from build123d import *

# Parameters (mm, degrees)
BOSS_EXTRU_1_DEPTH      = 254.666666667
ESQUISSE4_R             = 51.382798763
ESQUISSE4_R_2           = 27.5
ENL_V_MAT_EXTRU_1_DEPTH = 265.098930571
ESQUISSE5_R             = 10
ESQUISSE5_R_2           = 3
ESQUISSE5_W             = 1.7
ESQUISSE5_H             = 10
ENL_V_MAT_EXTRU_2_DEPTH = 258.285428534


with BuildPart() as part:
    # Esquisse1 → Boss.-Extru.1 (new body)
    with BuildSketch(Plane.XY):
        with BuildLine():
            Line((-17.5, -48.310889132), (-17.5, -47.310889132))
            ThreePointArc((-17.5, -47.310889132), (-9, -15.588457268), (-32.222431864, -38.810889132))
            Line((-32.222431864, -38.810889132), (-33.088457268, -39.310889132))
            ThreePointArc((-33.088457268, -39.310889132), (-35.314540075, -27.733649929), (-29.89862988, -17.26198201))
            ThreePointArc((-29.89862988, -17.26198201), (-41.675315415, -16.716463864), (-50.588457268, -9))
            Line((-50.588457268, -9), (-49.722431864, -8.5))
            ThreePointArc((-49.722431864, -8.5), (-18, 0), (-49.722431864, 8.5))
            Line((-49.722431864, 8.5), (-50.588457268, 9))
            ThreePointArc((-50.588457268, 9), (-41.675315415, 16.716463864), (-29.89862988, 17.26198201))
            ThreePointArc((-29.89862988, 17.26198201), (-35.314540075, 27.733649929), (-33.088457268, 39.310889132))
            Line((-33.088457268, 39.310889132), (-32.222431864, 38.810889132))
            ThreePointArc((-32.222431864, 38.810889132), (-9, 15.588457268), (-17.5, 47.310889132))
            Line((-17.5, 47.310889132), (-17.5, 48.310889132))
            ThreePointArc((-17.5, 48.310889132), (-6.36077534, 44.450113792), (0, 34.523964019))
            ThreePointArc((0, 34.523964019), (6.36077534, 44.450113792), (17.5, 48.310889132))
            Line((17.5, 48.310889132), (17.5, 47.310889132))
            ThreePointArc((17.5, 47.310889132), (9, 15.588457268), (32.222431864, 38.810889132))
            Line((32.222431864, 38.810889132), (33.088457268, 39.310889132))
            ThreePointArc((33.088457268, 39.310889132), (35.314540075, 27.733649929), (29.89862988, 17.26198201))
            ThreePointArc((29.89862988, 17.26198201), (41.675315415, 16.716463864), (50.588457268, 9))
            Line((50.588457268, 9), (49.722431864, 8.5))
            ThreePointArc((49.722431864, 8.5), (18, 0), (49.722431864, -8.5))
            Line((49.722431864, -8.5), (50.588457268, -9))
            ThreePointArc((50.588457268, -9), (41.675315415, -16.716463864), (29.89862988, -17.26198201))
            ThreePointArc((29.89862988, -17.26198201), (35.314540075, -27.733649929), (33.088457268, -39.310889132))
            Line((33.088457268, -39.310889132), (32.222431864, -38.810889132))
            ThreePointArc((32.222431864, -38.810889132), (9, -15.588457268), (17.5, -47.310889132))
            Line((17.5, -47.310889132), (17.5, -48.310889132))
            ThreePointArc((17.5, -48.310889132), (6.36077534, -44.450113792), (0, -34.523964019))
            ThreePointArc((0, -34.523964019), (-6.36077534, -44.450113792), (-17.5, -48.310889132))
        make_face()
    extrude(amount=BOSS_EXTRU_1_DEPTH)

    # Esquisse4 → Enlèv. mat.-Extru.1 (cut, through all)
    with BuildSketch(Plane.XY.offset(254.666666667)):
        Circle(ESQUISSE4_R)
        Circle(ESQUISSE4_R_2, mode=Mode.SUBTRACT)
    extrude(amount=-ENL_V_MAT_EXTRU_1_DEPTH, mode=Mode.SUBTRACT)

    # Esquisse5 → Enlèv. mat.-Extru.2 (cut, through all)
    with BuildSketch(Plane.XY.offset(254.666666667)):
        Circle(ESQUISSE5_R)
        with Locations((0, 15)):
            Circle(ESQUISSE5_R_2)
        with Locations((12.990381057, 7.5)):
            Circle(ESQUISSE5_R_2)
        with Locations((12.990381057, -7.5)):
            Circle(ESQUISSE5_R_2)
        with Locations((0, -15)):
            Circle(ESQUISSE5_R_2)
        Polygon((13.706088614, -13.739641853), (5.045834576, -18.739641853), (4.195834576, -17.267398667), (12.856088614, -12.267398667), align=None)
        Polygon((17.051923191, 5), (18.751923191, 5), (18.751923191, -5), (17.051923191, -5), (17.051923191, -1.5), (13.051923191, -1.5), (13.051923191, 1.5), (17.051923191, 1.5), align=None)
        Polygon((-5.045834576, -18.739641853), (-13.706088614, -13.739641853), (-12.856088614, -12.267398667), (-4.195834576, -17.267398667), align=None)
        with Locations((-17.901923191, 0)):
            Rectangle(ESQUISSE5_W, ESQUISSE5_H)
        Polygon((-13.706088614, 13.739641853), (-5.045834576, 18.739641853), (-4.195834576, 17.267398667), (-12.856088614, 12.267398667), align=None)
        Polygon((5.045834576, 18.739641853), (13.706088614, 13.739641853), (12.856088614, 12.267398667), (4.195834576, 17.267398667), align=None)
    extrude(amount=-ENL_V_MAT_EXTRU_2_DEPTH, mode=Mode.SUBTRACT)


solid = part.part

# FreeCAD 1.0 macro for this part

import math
import FreeCAD as App
import Part
import Sketcher
from FreeCAD import Vector
Q = App.Units.Quantity


def add_polygon(sketch, points):
    """Adds a closed chain of lines whose ends are joined by coincident constraints."""
    first, n = sketch.GeometryCount, len(points)
    for a, b in zip(points, points[1:] + points[:1]):
        sketch.addGeometry(Part.LineSegment(App.Vector(*a, 0), App.Vector(*b, 0)), False)
    for i in range(n):
        sketch.addConstraint(Sketcher.Constraint("Coincident", first + i, 2, first + (i + 1) % n, 1))

doc = App.newDocument("Part")
body = doc.addObject("PartDesign::Body", "Body")

# Sketch on XY plane
sketch1 = body.newObject("Sketcher::SketchObject", "Sketch")
sketch1.AttachmentSupport = (doc.getObject("XY_Plane"), [""])
sketch1.MapMode = "FlatFace"
sketch1.addGeometry([
    Part.LineSegment(Vector(-17.5, -47.3, 0), Vector(-17.5, -48.3, 0)),  # 0
    Part.ArcOfCircle(Part.Circle(Vector(-17.5, -30.3, 0), Vector(0, 0, 1), 18), math.radians(-90), math.radians(-14)),  # 1
    Part.ArcOfCircle(Part.Circle(Vector(17.5, -30.3, 0), Vector(0, 0, 1), 18), math.radians(-166), math.radians(-90)),  # 2
    Part.LineSegment(Vector(17.5, -48.3, 0), Vector(17.5, -47.3, 0)),  # 3
    Part.ArcOfCircle(Part.Circle(Vector(17.5, -30.3, 0), Vector(0, 0, 1), 17), math.radians(-30), math.radians(270)),  # 4
    Part.LineSegment(Vector(32.2, -38.8, 0), Vector(33.1, -39.3, 0)),  # 5
    Part.ArcOfCircle(Part.Circle(Vector(17.5, -30.3, 0), Vector(0, 0, 1), 18), math.radians(-30), math.radians(46)),  # 6
    Part.ArcOfCircle(Part.Circle(Vector(35, 0, 0), Vector(0, 0, 1), 18), math.radians(-106), math.radians(-30)),  # 7
    Part.LineSegment(Vector(50.6, -9, 0), Vector(49.7, -8.5, 0)),  # 8
    Part.ArcOfCircle(Part.Circle(Vector(35, 0, 0), Vector(0, 0, 1), 17), math.radians(30), math.radians(330)),  # 9
    Part.LineSegment(Vector(49.7, 8.5, 0), Vector(50.6, 9, 0)),  # 10
    Part.ArcOfCircle(Part.Circle(Vector(35, 0, 0), Vector(0, 0, 1), 18), math.radians(30), math.radians(106)),  # 11
    Part.ArcOfCircle(Part.Circle(Vector(17.5, 30.3, 0), Vector(0, 0, 1), 18), math.radians(-46), math.radians(30)),  # 12
    Part.LineSegment(Vector(33.1, 39.3, 0), Vector(32.2, 38.8, 0)),  # 13
    Part.ArcOfCircle(Part.Circle(Vector(17.5, 30.3, 0), Vector(0, 0, 1), 17), math.radians(90), math.radians(390)),  # 14
    Part.LineSegment(Vector(17.5, 47.3, 0), Vector(17.5, 48.3, 0)),  # 15
    Part.ArcOfCircle(Part.Circle(Vector(17.5, 30.3, 0), Vector(0, 0, 1), 18), math.radians(90), math.radians(166)),  # 16
    Part.ArcOfCircle(Part.Circle(Vector(-17.5, 30.3, 0), Vector(0, 0, 1), 18), math.radians(14), math.radians(90)),  # 17
    Part.LineSegment(Vector(-17.5, 48.3, 0), Vector(-17.5, 47.3, 0)),  # 18
    Part.ArcOfCircle(Part.Circle(Vector(-17.5, 30.3, 0), Vector(0, 0, 1), 17), math.radians(150), math.radians(450)),  # 19
    Part.LineSegment(Vector(-32.2, 38.8, 0), Vector(-33.1, 39.3, 0)),  # 20
    Part.ArcOfCircle(Part.Circle(Vector(-17.5, 30.3, 0), Vector(0, 0, 1), 18), math.radians(150), math.radians(226)),  # 21
    Part.ArcOfCircle(Part.Circle(Vector(-35, 0, 0), Vector(0, 0, 1), 18), math.radians(74), math.radians(150)),  # 22
    Part.LineSegment(Vector(-50.6, 9, 0), Vector(-49.7, 8.5, 0)),  # 23
    Part.ArcOfCircle(Part.Circle(Vector(-35, 0, 0), Vector(0, 0, 1), 17), math.radians(-150), math.radians(150)),  # 24
    Part.LineSegment(Vector(-49.7, -8.5, 0), Vector(-50.6, -9, 0)),  # 25
    Part.ArcOfCircle(Part.Circle(Vector(-35, 0, 0), Vector(0, 0, 1), 18), math.radians(-150), math.radians(-74)),  # 26
    Part.ArcOfCircle(Part.Circle(Vector(-17.5, -30.3, 0), Vector(0, 0, 1), 18), math.radians(134), math.radians(210)),  # 27
    Part.LineSegment(Vector(-33.1, -39.3, 0), Vector(-32.2, -38.8, 0)),  # 28
    Part.ArcOfCircle(Part.Circle(Vector(-17.5, -30.3, 0), Vector(0, 0, 1), 17), math.radians(-90), math.radians(210)),  # 29
], False)
sketch1.addConstraint([
    Sketcher.Constraint("Coincident", 0, 2, 1, 1),
    Sketcher.Constraint("Coincident", 1, 2, 2, 1),
    Sketcher.Constraint("Coincident", 2, 2, 3, 1),
    Sketcher.Constraint("Coincident", 3, 2, 4, 2),
    Sketcher.Constraint("Coincident", 4, 1, 5, 1),
    Sketcher.Constraint("Coincident", 5, 2, 6, 1),
    Sketcher.Constraint("Coincident", 6, 2, 7, 1),
    Sketcher.Constraint("Coincident", 7, 2, 8, 1),
    Sketcher.Constraint("Coincident", 8, 2, 9, 2),
    Sketcher.Constraint("Coincident", 9, 1, 10, 1),
    Sketcher.Constraint("Coincident", 10, 2, 11, 1),
    Sketcher.Constraint("Coincident", 11, 2, 12, 1),
    Sketcher.Constraint("Coincident", 12, 2, 13, 1),
    Sketcher.Constraint("Coincident", 13, 2, 14, 2),
    Sketcher.Constraint("Coincident", 14, 1, 15, 1),
    Sketcher.Constraint("Coincident", 15, 2, 16, 1),
    Sketcher.Constraint("Coincident", 16, 2, 17, 1),
    Sketcher.Constraint("Coincident", 17, 2, 18, 1),
    Sketcher.Constraint("Coincident", 18, 2, 19, 2),
    Sketcher.Constraint("Coincident", 19, 1, 20, 1),
    Sketcher.Constraint("Coincident", 20, 2, 21, 1),
    Sketcher.Constraint("Coincident", 21, 2, 22, 1),
    Sketcher.Constraint("Coincident", 22, 2, 23, 1),
    Sketcher.Constraint("Coincident", 23, 2, 24, 2),
    Sketcher.Constraint("Coincident", 24, 1, 25, 1),
    Sketcher.Constraint("Coincident", 25, 2, 26, 1),
    Sketcher.Constraint("Coincident", 26, 2, 27, 1),
    Sketcher.Constraint("Coincident", 27, 2, 28, 1),
    Sketcher.Constraint("Coincident", 28, 2, 29, 2),
    Sketcher.Constraint("Coincident", 29, 1, 0, 1),
    Sketcher.Constraint("Vertical", 0),
    Sketcher.Constraint("Vertical", 3),
    Sketcher.Constraint("Vertical", 15),
    Sketcher.Constraint("Vertical", 18),
    Sketcher.Constraint("Coincident", 4, 3, 2, 3),
    Sketcher.Constraint("Coincident", 6, 3, 2, 3),
    Sketcher.Constraint("Coincident", 9, 3, 7, 3),
    Sketcher.Constraint("Coincident", 11, 3, 7, 3),
    Sketcher.Constraint("Coincident", 14, 3, 12, 3),
    Sketcher.Constraint("Coincident", 16, 3, 12, 3),
    Sketcher.Constraint("Coincident", 19, 3, 17, 3),
    Sketcher.Constraint("Coincident", 21, 3, 17, 3),
    Sketcher.Constraint("Coincident", 24, 3, 22, 3),
    Sketcher.Constraint("Coincident", 26, 3, 22, 3),
    Sketcher.Constraint("Coincident", 27, 3, 1, 3),
    Sketcher.Constraint("Coincident", 29, 3, 1, 3),
    Sketcher.Constraint("Equal", 1, 2),
    Sketcher.Constraint("Equal", 2, 6),
    Sketcher.Constraint("Equal", 6, 7),
    Sketcher.Constraint("Equal", 4, 9),
    Sketcher.Constraint("Equal", 7, 11),
    Sketcher.Constraint("Equal", 11, 12),
    Sketcher.Constraint("Equal", 9, 14),
    Sketcher.Constraint("Equal", 12, 16),
    Sketcher.Constraint("Equal", 16, 17),
    Sketcher.Constraint("Equal", 14, 19),
    Sketcher.Constraint("Equal", 17, 21),
    Sketcher.Constraint("Equal", 21, 22),
    Sketcher.Constraint("Equal", 19, 24),
    Sketcher.Constraint("Equal", 22, 26),
    Sketcher.Constraint("Equal", 26, 27),
    Sketcher.Constraint("Equal", 24, 29),
    Sketcher.Constraint("Symmetric", 1, 3, 12, 3, -1, 1),
    Sketcher.Constraint("Symmetric", 2, 3, 17, 3, -1, 1),
    Sketcher.Constraint("Symmetric", 7, 3, 22, 3, -1, 1),
    Sketcher.Constraint("Symmetric", 1, 3, 2, 3, -2),
    Sketcher.Constraint("Symmetric", 10, 2, 22, 2, -2),
    Sketcher.Constraint("Parallel", 5, 8),
    Sketcher.Constraint("Parallel", 10, 13),
    Sketcher.Constraint("Parallel", 8, 20),
    Sketcher.Constraint("Parallel", 20, 23),
    Sketcher.Constraint("Parallel", 13, 25),
    Sketcher.Constraint("Parallel", 25, 28),
    Sketcher.Constraint("Horizontal", 13, 2, 19, 1),
    Sketcher.Constraint("Horizontal", 12, 2, 20, 2),
    Sketcher.Constraint("Horizontal", 8, 2, 24, 1),
    Sketcher.Constraint("Horizontal", 5, 2, 27, 2),
    Sketcher.Constraint("Vertical", 29, 3, 0, 2),
    Sketcher.Constraint("Vertical", 16, 3, 2, 2),
    Sketcher.Constraint("Vertical", 8, 2, 9, 1),
    Sketcher.Constraint("Vertical", 5, 2, 12, 2),
    Sketcher.Constraint("Vertical", 3, 2, 14, 1),
    Sketcher.Constraint("Vertical", 0, 2, 17, 2),
    Sketcher.Constraint("Radius", 1, Q("18 mm")),
    Sketcher.Constraint("Radius", 4, Q("17 mm")),
    Sketcher.Constraint("Angle", 5, Q("-30 deg")),
    Sketcher.Constraint("DistanceX", -1, 1, 7, 3, Q("35 mm")),
    Sketcher.Constraint("DistanceY", 7, 2, -1, 1, Q("9 mm")),
    Sketcher.Constraint("DistanceX", 1, 3, 2, 3, Q("35 mm")),
    Sketcher.Constraint("DistanceY", 3, 2, 5, 2, Q("8 mm")),
    Sketcher.Constraint("DistanceX", 6, 2, 8, 2, Q("19.823802 mm")),
])
pad1 = body.newObject("PartDesign::Pad", "Pad")
pad1.Profile = sketch1
pad1.Length = 254.666667

# Sketch on XY plane
sketch2 = body.newObject("Sketcher::SketchObject", "Sketch001")
sketch2.AttachmentSupport = (doc.getObject("XY_Plane"), [""])
sketch2.MapMode = "FlatFace"
sketch2.AttachmentOffset = App.Placement(Vector(0, 0, 254.666667), App.Rotation())
sketch2.addGeometry([
    Part.Circle(Vector(0, 0, 0), Vector(0, 0, 1), 51),
    Part.Circle(Vector(0, 0, 0), Vector(0, 0, 1), 28),
], False)
sketch2.addConstraint([
    Sketcher.Constraint("Coincident", 0, 3, -1, 1),
    Sketcher.Constraint("Coincident", 1, 3, -1, 1),
    Sketcher.Constraint("Diameter", 1, Q("55 mm")),
    Sketcher.Constraint("Diameter", 0, Q("102.765598 mm")),
])
pocket1 = body.newObject("PartDesign::Pocket", "Pocket")
pocket1.Profile = sketch2
pocket1.Type = "ThroughAll"

# Sketch on XY plane
sketch3 = body.newObject("Sketcher::SketchObject", "Sketch002")
sketch3.AttachmentSupport = (doc.getObject("XY_Plane"), [""])
sketch3.MapMode = "FlatFace"
sketch3.AttachmentOffset = App.Placement(Vector(0, 0, 254.666667), App.Rotation())
sketch3.addGeometry(Part.Circle(Vector(0, 0, 0), Vector(0, 0, 1), 10), False)  # 0
sketch3.addGeometry(Part.Circle(Vector(0, 15, 0), Vector(0, 0, 1), 3), False)  # 1
sketch3.addGeometry(Part.Circle(Vector(13, 7.5, 0), Vector(0, 0, 1), 3), False)  # 2
sketch3.addGeometry(Part.Circle(Vector(13, -7.5, 0), Vector(0, 0, 1), 3), False)  # 3
sketch3.addGeometry(Part.Circle(Vector(0, -15, 0), Vector(0, 0, 1), 3), False)  # 4
add_polygon(sketch3, [(5, -18.7), (13.7, -13.7), (12.9, -12.3), (4.2, -17.3)])  # lines 5-8
add_polygon(sketch3, [(18.8, 5), (17.1, 5), (17.1, 1.5), (13.1, 1.5), (13.1, -1.5), (17.1, -1.5), (17.1, -5), (18.8, -5)])  # lines 9-16
add_polygon(sketch3, [(-13.7, -13.7), (-5, -18.7), (-4.2, -17.3), (-12.9, -12.3)])  # lines 17-20
add_polygon(sketch3, [(-18.8, 5), (-18.8, -5), (-17.1, -5), (-17.1, 5)])  # lines 21-24
add_polygon(sketch3, [(-5, 18.7), (-13.7, 13.7), (-12.9, 12.3), (-4.2, 17.3)])  # lines 25-28
add_polygon(sketch3, [(13.7, 13.7), (5, 18.7), (4.2, 17.3), (12.9, 12.3)])  # lines 29-32
sketch3.addConstraint([
    Sketcher.Constraint("Horizontal", 9),
    Sketcher.Constraint("Vertical", 10),
    Sketcher.Constraint("Horizontal", 11),
    Sketcher.Constraint("Vertical", 12),
    Sketcher.Constraint("Horizontal", 13),
    Sketcher.Constraint("Vertical", 14),
    Sketcher.Constraint("Horizontal", 15),
    Sketcher.Constraint("Vertical", 16),
    Sketcher.Constraint("Vertical", 21),
    Sketcher.Constraint("Horizontal", 22),
    Sketcher.Constraint("Vertical", 23),
    Sketcher.Constraint("Horizontal", 24),
    Sketcher.Constraint("Coincident", 0, 3, -1, 1),
    Sketcher.Constraint("Equal", 1, 2),
    Sketcher.Constraint("Equal", 2, 3),
    Sketcher.Constraint("Equal", 3, 4),
    Sketcher.Constraint("Symmetric", 1, 3, 4, 3, -1, 1),
    Sketcher.Constraint("Symmetric", 16, 2, 21, 2, -1, 1),
    Sketcher.Constraint("Symmetric", 14, 2, 23, 2, -1, 1),
    Sketcher.Constraint("Symmetric", 5, 2, 25, 2, -1, 1),
    Sketcher.Constraint("Symmetric", 6, 2, 26, 2, -1, 1),
    Sketcher.Constraint("Symmetric", 7, 2, 27, 2, -1, 1),
    Sketcher.Constraint("Symmetric", 8, 2, 28, 2, -1, 1),
    Sketcher.Constraint("Symmetric", 17, 2, 29, 2, -1, 1),
    Sketcher.Constraint("Symmetric", 18, 2, 30, 2, -1, 1),
    Sketcher.Constraint("Symmetric", 19, 2, 31, 2, -1, 1),
    Sketcher.Constraint("Symmetric", 20, 2, 32, 2, -1, 1),
    Sketcher.Constraint("Symmetric", 8, 2, 17, 2, -2),
    Sketcher.Constraint("Symmetric", 7, 2, 18, 2, -2),
    Sketcher.Constraint("Symmetric", 6, 2, 19, 2, -2),
    Sketcher.Constraint("Symmetric", 5, 2, 20, 2, -2),
    Sketcher.Constraint("Symmetric", 9, 2, 23, 2, -2),
    Sketcher.Constraint("Symmetric", 2, 3, 3, 3, -1),
    Sketcher.Constraint("PointOnObject", 1, 3, -2),
    Sketcher.Constraint("Perpendicular", 5, 6),
    Sketcher.Constraint("Perpendicular", 6, 7),
    Sketcher.Constraint("Perpendicular", 7, 8),
    Sketcher.Constraint("Equal", 10, 14),
    Sketcher.Constraint("Diameter", 0, Q("20 mm")),
    Sketcher.Constraint("Diameter", 1, Q("6 mm")),
    Sketcher.Constraint("DistanceX", 11, 2, 11, 1, Q("4 mm")),
    Sketcher.Constraint("DistanceY", 12, 2, 12, 1, Q("3 mm")),
    Sketcher.Constraint("DistanceY", 16, 1, 16, 2, Q("10 mm")),
    Sketcher.Constraint("Angle", 5, Q("30 deg")),
    Sketcher.Constraint("Distance", 5, Q("10 mm")),
    Sketcher.Constraint("DistanceX", 9, 2, 9, 1, Q("1.7 mm")),
    Sketcher.Constraint("DistanceY", -1, 1, 1, 3, Q("15 mm")),
    Sketcher.Constraint("DistanceY", 3, 3, 2, 3, Q("15 mm")),
    Sketcher.Constraint("Distance", 6, Q("1.7 mm")),
    Sketcher.Constraint("DistanceY", 6, 2, -1, 1, Q("12.267399 mm")),
    Sketcher.Constraint("DistanceX", -1, 1, 2, 3, Q("12.990381 mm")),
    Sketcher.Constraint("DistanceX", -1, 1, 5, 2, Q("13.706089 mm")),
    Sketcher.Constraint("DistanceX", 21, 2, 18, 2, Q("14.556089 mm")),
])
pocket2 = body.newObject("PartDesign::Pocket", "Pocket001")
pocket2.Profile = sketch3
pocket2.Type = "ThroughAll"

doc.recompute()
